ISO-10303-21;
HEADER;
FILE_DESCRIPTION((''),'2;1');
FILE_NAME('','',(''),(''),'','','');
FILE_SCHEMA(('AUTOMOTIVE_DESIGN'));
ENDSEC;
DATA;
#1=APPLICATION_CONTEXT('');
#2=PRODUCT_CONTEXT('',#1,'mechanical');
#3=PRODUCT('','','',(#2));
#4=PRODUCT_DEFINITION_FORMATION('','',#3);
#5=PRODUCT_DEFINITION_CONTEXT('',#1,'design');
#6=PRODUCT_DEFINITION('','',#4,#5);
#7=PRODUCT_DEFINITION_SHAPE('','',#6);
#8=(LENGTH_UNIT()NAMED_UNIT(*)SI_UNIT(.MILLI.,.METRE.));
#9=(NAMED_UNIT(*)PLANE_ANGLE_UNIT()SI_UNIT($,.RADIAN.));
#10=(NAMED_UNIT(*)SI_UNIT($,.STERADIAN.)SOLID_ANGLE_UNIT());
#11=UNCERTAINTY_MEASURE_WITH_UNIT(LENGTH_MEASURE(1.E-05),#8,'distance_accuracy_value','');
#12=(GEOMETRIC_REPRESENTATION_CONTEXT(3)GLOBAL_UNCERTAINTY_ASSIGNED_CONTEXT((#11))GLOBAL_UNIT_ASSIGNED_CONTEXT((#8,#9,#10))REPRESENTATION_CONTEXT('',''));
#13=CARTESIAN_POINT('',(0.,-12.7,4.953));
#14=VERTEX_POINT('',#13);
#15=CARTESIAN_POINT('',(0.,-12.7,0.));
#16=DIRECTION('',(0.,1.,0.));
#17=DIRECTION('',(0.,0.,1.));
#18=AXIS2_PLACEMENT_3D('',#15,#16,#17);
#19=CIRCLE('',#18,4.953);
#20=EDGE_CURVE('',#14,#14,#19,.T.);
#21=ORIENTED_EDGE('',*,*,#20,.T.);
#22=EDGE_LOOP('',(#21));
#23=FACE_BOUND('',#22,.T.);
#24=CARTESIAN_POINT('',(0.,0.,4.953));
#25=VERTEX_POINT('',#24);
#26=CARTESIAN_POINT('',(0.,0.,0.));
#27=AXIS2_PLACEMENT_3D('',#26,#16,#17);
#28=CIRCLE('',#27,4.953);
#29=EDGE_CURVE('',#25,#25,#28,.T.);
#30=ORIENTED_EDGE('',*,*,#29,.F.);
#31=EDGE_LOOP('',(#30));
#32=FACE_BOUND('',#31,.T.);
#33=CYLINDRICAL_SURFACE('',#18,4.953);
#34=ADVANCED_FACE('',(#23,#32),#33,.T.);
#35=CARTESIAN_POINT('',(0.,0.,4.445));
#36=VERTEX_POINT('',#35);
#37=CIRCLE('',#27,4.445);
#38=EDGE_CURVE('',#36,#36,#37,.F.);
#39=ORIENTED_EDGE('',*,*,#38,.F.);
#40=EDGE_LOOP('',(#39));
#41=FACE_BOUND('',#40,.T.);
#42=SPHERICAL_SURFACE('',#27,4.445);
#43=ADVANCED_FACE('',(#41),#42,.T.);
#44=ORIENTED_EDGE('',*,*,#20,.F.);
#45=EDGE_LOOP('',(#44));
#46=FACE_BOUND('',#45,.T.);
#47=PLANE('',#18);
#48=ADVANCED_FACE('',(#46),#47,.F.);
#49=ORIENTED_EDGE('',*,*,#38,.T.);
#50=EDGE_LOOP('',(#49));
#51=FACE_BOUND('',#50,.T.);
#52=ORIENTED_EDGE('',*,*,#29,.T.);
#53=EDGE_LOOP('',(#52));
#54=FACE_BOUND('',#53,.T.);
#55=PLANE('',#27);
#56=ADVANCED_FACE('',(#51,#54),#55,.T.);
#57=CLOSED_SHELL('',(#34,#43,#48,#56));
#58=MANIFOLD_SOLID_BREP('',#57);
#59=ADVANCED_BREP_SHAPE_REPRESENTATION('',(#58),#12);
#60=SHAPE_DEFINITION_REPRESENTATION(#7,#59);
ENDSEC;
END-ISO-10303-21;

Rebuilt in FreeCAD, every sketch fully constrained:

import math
import FreeCAD as App
import Part
import Sketcher

V = App.Vector
Q = App.Units.Quantity

doc = App.newDocument("Part")
body = doc.addObject("PartDesign::Body", "Body")

sketch1 = body.newObject("Sketcher::SketchObject", "Sketch")
sketch1.AttachmentSupport = (doc.getObject("XZ_Plane"), [""])
sketch1.MapMode = "FlatFace"
sketch1.addGeometry(Part.LineSegment(V(4.4, 0, 0), V(-4.4, 0, 0)), False)
sketch1.addGeometry(Part.ArcOfCircle(Part.Circle(V(0, 0, 0), V(0, 0, 1), 4.4), math.radians(0), math.radians(180)), False)
sketch1.addConstraint(Sketcher.Constraint("Coincident", 0, 1, 1, 1))
sketch1.addConstraint(Sketcher.Constraint("Coincident", 1, 2, 0, 2))
sketch1.addConstraint(Sketcher.Constraint("Horizontal", 0))
sketch1.addConstraint(Sketcher.Constraint("Coincident", 1, 3, -1, 1))
sketch1.addConstraint(Sketcher.Constraint("PointOnObject", 0, 1, -1))
sketch1.addConstraint(Sketcher.Constraint("Radius", 1, Q("0.175 in")))
revolution = body.newObject("PartDesign::Revolution", "Revolution")
revolution.Profile = sketch1
revolution.ReferenceAxis = (sketch1, ["H_Axis"])
revolution.Angle = 360

sketch2 = body.newObject("Sketcher::SketchObject", "Sketch001")
sketch2.AttachmentSupport = (doc.getObject("XZ_Plane"), [""])
sketch2.MapMode = "FlatFace"
sketch2.addGeometry(Part.Circle(V(0, 0, 0), V(0, 0, 1), 5), False)
sketch2.addConstraint(Sketcher.Constraint("Coincident", 0, 3, -1, 1))
sketch2.addConstraint(Sketcher.Constraint("Diameter", 0, Q("0.39 in")))
pad1 = body.newObject("PartDesign::Pad", "Pad")
pad1.Profile = sketch2
pad1.Length = Q("0.5 in")

doc.recompute()
